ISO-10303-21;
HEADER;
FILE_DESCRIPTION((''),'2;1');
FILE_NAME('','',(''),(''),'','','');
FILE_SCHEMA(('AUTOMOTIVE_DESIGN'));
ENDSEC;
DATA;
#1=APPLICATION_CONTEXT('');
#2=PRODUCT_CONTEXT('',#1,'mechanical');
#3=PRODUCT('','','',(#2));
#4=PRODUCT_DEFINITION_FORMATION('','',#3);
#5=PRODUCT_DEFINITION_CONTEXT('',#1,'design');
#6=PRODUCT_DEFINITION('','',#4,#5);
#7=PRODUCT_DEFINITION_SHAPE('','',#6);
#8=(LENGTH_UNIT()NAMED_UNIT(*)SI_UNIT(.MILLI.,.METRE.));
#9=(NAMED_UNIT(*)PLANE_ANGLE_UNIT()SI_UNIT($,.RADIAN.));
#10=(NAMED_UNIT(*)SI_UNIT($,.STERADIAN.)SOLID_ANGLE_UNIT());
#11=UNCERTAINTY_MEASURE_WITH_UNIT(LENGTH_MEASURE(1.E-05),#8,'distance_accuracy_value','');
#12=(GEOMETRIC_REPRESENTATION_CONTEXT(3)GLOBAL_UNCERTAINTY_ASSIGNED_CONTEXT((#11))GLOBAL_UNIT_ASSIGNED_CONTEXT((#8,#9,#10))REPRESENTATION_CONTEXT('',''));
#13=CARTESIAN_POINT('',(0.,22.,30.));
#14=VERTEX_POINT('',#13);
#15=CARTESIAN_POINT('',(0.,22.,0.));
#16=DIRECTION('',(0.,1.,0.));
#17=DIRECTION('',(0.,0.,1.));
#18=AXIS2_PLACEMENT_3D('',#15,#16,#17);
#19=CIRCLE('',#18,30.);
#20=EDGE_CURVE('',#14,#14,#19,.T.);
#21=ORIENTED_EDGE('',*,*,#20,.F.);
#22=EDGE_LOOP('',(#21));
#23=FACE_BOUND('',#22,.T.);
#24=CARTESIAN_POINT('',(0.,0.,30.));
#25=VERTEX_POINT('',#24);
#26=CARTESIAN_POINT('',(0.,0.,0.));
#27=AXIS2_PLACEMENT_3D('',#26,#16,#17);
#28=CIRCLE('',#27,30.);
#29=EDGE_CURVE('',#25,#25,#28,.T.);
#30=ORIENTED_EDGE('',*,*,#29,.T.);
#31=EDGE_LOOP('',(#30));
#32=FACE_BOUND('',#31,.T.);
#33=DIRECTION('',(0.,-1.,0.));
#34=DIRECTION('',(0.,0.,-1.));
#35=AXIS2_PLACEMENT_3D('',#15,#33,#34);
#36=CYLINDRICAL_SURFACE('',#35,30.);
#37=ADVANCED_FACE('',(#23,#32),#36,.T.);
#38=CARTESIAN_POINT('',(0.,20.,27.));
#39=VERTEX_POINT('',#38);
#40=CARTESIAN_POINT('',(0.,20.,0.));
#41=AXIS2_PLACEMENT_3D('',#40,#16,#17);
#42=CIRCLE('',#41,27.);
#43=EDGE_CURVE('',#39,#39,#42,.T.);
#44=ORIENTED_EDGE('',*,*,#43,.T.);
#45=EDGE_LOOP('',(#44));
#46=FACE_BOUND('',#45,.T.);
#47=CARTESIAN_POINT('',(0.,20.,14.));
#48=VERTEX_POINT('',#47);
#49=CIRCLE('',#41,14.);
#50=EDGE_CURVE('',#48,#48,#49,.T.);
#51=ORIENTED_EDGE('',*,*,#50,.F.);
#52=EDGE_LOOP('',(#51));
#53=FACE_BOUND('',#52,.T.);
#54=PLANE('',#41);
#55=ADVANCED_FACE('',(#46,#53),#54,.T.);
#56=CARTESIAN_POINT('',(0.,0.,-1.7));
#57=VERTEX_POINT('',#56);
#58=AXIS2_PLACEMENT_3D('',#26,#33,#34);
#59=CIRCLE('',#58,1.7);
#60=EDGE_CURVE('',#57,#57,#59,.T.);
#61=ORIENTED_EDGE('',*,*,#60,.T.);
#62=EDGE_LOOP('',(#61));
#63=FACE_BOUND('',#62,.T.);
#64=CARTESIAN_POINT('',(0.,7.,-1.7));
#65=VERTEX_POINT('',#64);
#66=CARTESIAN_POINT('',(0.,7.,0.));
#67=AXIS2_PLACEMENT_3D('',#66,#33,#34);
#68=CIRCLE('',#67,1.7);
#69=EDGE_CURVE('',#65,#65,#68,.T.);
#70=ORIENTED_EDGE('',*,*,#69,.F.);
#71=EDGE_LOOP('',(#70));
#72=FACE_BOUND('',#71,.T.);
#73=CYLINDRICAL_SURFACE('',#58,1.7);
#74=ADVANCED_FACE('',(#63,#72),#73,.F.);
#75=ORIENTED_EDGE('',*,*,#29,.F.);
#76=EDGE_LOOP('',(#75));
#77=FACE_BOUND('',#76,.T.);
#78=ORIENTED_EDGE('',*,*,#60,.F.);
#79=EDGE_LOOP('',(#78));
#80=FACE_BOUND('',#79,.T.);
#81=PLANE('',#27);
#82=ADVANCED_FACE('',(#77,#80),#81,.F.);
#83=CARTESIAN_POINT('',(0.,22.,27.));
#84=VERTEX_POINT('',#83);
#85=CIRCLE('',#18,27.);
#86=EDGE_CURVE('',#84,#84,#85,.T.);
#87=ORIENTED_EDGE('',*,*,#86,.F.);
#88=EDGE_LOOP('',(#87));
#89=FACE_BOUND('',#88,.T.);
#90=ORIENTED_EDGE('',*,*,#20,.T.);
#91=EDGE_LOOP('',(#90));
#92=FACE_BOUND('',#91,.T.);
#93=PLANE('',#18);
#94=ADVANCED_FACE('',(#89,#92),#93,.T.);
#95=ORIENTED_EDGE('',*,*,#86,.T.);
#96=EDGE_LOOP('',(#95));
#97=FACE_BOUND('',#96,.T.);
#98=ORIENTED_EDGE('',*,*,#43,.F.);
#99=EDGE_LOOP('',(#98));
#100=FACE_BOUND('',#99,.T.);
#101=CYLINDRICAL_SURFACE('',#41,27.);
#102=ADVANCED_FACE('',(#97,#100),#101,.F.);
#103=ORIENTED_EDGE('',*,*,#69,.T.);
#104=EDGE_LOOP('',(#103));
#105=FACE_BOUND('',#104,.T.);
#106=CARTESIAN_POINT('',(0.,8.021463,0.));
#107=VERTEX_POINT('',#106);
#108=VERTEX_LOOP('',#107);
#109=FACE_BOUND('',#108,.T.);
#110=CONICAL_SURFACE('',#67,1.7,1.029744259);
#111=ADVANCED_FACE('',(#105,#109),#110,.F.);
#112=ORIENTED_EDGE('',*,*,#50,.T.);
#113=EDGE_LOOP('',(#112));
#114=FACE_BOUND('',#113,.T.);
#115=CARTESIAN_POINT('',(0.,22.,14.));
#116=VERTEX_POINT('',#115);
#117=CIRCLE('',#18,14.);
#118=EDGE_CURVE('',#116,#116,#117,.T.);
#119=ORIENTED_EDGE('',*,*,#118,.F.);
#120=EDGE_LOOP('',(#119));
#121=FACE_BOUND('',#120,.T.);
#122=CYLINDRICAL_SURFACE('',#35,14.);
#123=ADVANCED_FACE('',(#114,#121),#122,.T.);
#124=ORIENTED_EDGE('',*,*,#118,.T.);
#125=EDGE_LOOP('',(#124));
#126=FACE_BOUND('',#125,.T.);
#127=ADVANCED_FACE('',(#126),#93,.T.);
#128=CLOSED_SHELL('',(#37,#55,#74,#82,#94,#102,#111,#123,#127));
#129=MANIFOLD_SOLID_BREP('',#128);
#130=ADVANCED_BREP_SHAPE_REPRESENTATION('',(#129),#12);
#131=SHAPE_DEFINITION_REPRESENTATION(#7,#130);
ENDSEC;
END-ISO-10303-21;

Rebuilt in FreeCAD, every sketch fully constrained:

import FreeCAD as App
import Part
import Sketcher
from FreeCAD import Vector
Q = App.Units.Quantity

doc = App.newDocument("Part")
body = doc.addObject("PartDesign::Body", "Body")

# Sketch on XZ plane
sketch1 = body.newObject("Sketcher::SketchObject", "Sketch")
sketch1.AttachmentSupport = (doc.getObject("XZ_Plane"), [""])
sketch1.MapMode = "FlatFace"
sketch1.addGeometry(Part.Circle(Vector(0, 0, 0), Vector(0, 0, 1), 30), False)
sketch1.addConstraint(Sketcher.Constraint("Coincident", 0, 3, -1, 1))
sketch1.addConstraint(Sketcher.Constraint("Diameter", 0, Q("60 mm")))
pad1 = body.newObject("PartDesign::Pad", "Pad")
pad1.Profile = sketch1
pad1.Length = 22
pad1.Reversed = True

# Sketch on XZ plane
sketch2 = body.newObject("Sketcher::SketchObject", "Sketch001")
sketch2.AttachmentSupport = (doc.getObject("XZ_Plane"), [""])
sketch2.MapMode = "FlatFace"
sketch2.AttachmentOffset = App.Placement(Vector(0, 0, -22), App.Rotation())
sketch2.addGeometry(Part.Circle(Vector(0, 0, 0), Vector(0, 0, 1), 27), False)
sketch2.addConstraint(Sketcher.Constraint("Coincident", 0, 3, -1, 1))
sketch2.addConstraint(Sketcher.Constraint("Diameter", 0, Q("54 mm")))
pocket1 = body.newObject("PartDesign::Pocket", "Pocket")
pocket1.Profile = sketch2
pocket1.Length = 2
pocket1.Reversed = True

# Sketch on XZ plane
sketch3 = body.newObject("Sketcher::SketchObject", "Sketch002")
sketch3.AttachmentSupport = (doc.getObject("XZ_Plane"), [""])
sketch3.MapMode = "FlatFace"
sketch3.AttachmentOffset = App.Placement(Vector(0, 0, -20), App.Rotation())
sketch3.addGeometry(Part.Circle(Vector(0, 0, 0), Vector(0, 0, 1), 14), False)
sketch3.addConstraint(Sketcher.Constraint("Coincident", 0, 3, -1, 1))
sketch3.addConstraint(Sketcher.Constraint("Diameter", 0, Q("28 mm")))
pad2 = body.newObject("PartDesign::Pad", "Pad001")
pad2.Profile = sketch3
pad2.Length = 2
pad2.Reversed = True

# Sketch on XZ plane
sketch4 = body.newObject("Sketcher::SketchObject", "Sketch003")
sketch4.AttachmentSupport = (doc.getObject("XZ_Plane"), [""])
sketch4.MapMode = "FlatFace"
sketch4.addGeometry(Part.Circle(Vector(0, 0, 0), Vector(0, 0, 1), 1.7), False)
sketch4.addConstraint(Sketcher.Constraint("Coincident", 0, 3, -1, 1))
sketch4.addConstraint(Sketcher.Constraint("Diameter", 0, Q("3.4 mm")))
doc.recompute()
hole = body.newObject("PartDesign::Hole", "Hole")
hole.Profile = sketch4
hole.ThreadType = "None"
hole.Diameter = 3.4
hole.DepthType = "Dimension"
hole.Depth = 7
hole.DrillPoint = "Angled"
hole.DrillPointAngle = 118

doc.recompute()
